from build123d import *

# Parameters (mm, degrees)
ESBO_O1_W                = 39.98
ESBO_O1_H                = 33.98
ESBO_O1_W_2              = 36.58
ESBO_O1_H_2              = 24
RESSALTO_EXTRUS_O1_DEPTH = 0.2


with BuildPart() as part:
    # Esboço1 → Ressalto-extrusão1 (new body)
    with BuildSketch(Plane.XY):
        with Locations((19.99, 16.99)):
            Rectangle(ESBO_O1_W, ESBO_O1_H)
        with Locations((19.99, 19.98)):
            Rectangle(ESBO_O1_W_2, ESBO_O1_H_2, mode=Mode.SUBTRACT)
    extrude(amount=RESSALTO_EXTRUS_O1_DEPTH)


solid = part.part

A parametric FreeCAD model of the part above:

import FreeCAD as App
import Part
import Sketcher
from FreeCAD import Vector

doc = App.newDocument("Part")
body = doc.addObject("PartDesign::Body", "Body")

# Sketch on XY plane
sketch1 = body.newObject("Sketcher::SketchObject", "Sketch")
sketch1.AttachmentSupport = (doc.getObject("XY_Plane"), [""])
sketch1.MapMode = "FlatFace"
sketch1.addGeometry(Part.LineSegment(Vector(0, 33.98, 0), Vector(0, 0, 0)), False)
sketch1.addGeometry(Part.LineSegment(Vector(0, 0, 0), Vector(39.98, 0, 0)), False)
sketch1.addGeometry(Part.LineSegment(Vector(39.98, 0, 0), Vector(39.98, 33.98, 0)), False)
sketch1.addGeometry(Part.LineSegment(Vector(39.98, 33.98, 0), Vector(0, 33.98, 0)), False)
sketch1.addGeometry(Part.LineSegment(Vector(38.28, 7.98, 0), Vector(1.7, 7.98, 0)), False)
sketch1.addGeometry(Part.LineSegment(Vector(1.7, 7.98, 0), Vector(1.7, 31.98, 0)), False)
sketch1.addGeometry(Part.LineSegment(Vector(1.7, 31.98, 0), Vector(38.28, 31.98, 0)), False)
sketch1.addGeometry(Part.LineSegment(Vector(38.28, 31.98, 0), Vector(38.28, 7.98, 0)), False)
sketch1.addConstraint(Sketcher.Constraint("Coincident", 0, 2, 1, 1))
sketch1.addConstraint(Sketcher.Constraint("Coincident", 1, 2, 2, 1))
sketch1.addConstraint(Sketcher.Constraint("Coincident", 2, 2, 3, 1))
sketch1.addConstraint(Sketcher.Constraint("Coincident", 3, 2, 0, 1))
sketch1.addConstraint(Sketcher.Constraint("Coincident", 4, 2, 5, 1))
sketch1.addConstraint(Sketcher.Constraint("Coincident", 5, 2, 6, 1))
sketch1.addConstraint(Sketcher.Constraint("Coincident", 6, 2, 7, 1))
sketch1.addConstraint(Sketcher.Constraint("Coincident", 7, 2, 4, 1))
sketch1.addConstraint(Sketcher.Constraint("Vertical", 0))
sketch1.addConstraint(Sketcher.Constraint("Horizontal", 1))
sketch1.addConstraint(Sketcher.Constraint("Vertical", 2))
sketch1.addConstraint(Sketcher.Constraint("Horizontal", 3))
sketch1.addConstraint(Sketcher.Constraint("Horizontal", 4))
sketch1.addConstraint(Sketcher.Constraint("Vertical", 5))
sketch1.addConstraint(Sketcher.Constraint("Horizontal", 6))
sketch1.addConstraint(Sketcher.Constraint("Vertical", 7))
sketch1.addConstraint(Sketcher.Constraint("Coincident", 0, 2, -1, 1))
sketch1.addConstraint(Sketcher.Constraint("DistanceY", 5, 1, 5, 2, 24.0))
sketch1.addConstraint(Sketcher.Constraint("DistanceY", 4, 2, 3, 2, 26.0))
sketch1.addConstraint(Sketcher.Constraint("DistanceX", 1, 1, 1, 2, 39.98))
sketch1.addConstraint(Sketcher.Constraint("DistanceX", 4, 2, 4, 1, 36.58))
sketch1.addConstraint(Sketcher.Constraint("DistanceY", 0, 2, 0, 1, 33.98))
sketch1.addConstraint(Sketcher.Constraint("DistanceX", -1, 1, 4, 2, 1.7))
pad1 = body.newObject("PartDesign::Pad", "Pad")
pad1.Profile = sketch1
pad1.Length = 0.2

doc.recompute()
